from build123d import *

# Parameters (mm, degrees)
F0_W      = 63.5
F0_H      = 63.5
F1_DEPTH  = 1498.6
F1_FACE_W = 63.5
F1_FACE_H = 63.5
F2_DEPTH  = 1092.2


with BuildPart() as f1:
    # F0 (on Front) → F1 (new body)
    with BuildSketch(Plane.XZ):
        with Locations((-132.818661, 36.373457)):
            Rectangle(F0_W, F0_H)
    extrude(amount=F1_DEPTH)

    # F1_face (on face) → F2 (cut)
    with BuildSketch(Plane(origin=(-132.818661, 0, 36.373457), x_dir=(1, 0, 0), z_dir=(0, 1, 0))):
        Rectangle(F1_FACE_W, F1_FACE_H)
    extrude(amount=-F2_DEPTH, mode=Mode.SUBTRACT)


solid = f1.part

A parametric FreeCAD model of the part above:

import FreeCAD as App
import Part
import Sketcher

V = App.Vector
Q = App.Units.Quantity

doc = App.newDocument("Part")
body = doc.addObject("PartDesign::Body", "Body")

# Sketch on XZ plane
sketch1 = body.newObject("Sketcher::SketchObject", "Sketch")
sketch1.AttachmentSupport = (doc.getObject("XZ_Plane"), [""])
sketch1.MapMode = "FlatFace"
sketch1.addGeometry(Part.LineSegment(V(-164.568661, 68.123457, 0), V(-164.568661, 4.623457, 0)), False)
sketch1.addGeometry(Part.LineSegment(V(-164.568661, 4.623457, 0), V(-101.068661, 4.623457, 0)), False)
sketch1.addGeometry(Part.LineSegment(V(-101.068661, 4.623457, 0), V(-101.068661, 68.123457, 0)), False)
sketch1.addGeometry(Part.LineSegment(V(-101.068661, 68.123457, 0), V(-164.568661, 68.123457, 0)), False)
sketch1.addConstraint(Sketcher.Constraint("Coincident", 0, 2, 1, 1))
sketch1.addConstraint(Sketcher.Constraint("Coincident", 1, 2, 2, 1))
sketch1.addConstraint(Sketcher.Constraint("Coincident", 2, 2, 3, 1))
sketch1.addConstraint(Sketcher.Constraint("Coincident", 3, 2, 0, 1))
sketch1.addConstraint(Sketcher.Constraint("Vertical", 0))
sketch1.addConstraint(Sketcher.Constraint("Horizontal", 1))
sketch1.addConstraint(Sketcher.Constraint("Vertical", 2))
sketch1.addConstraint(Sketcher.Constraint("Horizontal", 3))
sketch1.addConstraint(Sketcher.Constraint("Equal", 3, 0))
sketch1.addConstraint(Sketcher.Constraint("DistanceX", 1, 1, 1, 2, Q("2.5 in")))
sketch1.addConstraint(Sketcher.Constraint("DistanceX", 0, 2, -1, 1, Q("164.568661 mm")))
sketch1.addConstraint(Sketcher.Constraint("DistanceY", -1, 1, 0, 2, Q("4.623457 mm")))
pad1 = body.newObject("PartDesign::Pad", "Pad")
pad1.Profile = sketch1
pad1.Length = Q("59 in")

# Sketch on XZ plane
sketch2 = body.newObject("Sketcher::SketchObject", "Sketch001")
sketch2.AttachmentSupport = (doc.getObject("XZ_Plane"), [""])
sketch2.MapMode = "FlatFace"
sketch2.addGeometry(Part.LineSegment(V(-164.568661, 4.623457, 0), V(-164.568661, 68.123457, 0)), False)
sketch2.addGeometry(Part.LineSegment(V(-164.568661, 68.123457, 0), V(-101.068661, 68.123457, 0)), False)
sketch2.addGeometry(Part.LineSegment(V(-101.068661, 68.123457, 0), V(-101.068661, 4.623457, 0)), False)
sketch2.addGeometry(Part.LineSegment(V(-101.068661, 4.623457, 0), V(-164.568661, 4.623457, 0)), False)
sketch2.addConstraint(Sketcher.Constraint("Coincident", 0, 2, 1, 1))
sketch2.addConstraint(Sketcher.Constraint("Coincident", 1, 2, 2, 1))
sketch2.addConstraint(Sketcher.Constraint("Coincident", 2, 2, 3, 1))
sketch2.addConstraint(Sketcher.Constraint("Coincident", 3, 2, 0, 1))
sketch2.addConstraint(Sketcher.Constraint("Vertical", 0))
sketch2.addConstraint(Sketcher.Constraint("Horizontal", 1))
sketch2.addConstraint(Sketcher.Constraint("Vertical", 2))
sketch2.addConstraint(Sketcher.Constraint("Horizontal", 3))
sketch2.addConstraint(Sketcher.Constraint("Equal", 3, 0))
sketch2.addConstraint(Sketcher.Constraint("DistanceX", 1, 1, 1, 2, Q("2.5 in")))
sketch2.addConstraint(Sketcher.Constraint("DistanceX", 0, 2, -1, 1, Q("164.568661 mm")))
sketch2.addConstraint(Sketcher.Constraint("DistanceY", -1, 1, 0, 2, Q("68.123457 mm")))
pocket1 = body.newObject("PartDesign::Pocket", "Pocket")
pocket1.Profile = sketch2
pocket1.Length = Q("43 in")
pocket1.Reversed = True

doc.recompute()
